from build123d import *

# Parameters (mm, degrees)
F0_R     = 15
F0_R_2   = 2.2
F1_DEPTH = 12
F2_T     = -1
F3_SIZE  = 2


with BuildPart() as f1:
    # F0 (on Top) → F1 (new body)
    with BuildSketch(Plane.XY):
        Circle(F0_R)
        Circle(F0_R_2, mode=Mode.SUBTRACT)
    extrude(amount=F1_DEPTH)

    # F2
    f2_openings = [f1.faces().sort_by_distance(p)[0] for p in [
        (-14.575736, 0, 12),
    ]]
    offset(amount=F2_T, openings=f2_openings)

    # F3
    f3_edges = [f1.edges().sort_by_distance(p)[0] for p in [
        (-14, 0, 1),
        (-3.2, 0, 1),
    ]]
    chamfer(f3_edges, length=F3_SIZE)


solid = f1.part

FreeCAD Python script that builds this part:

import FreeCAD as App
import Part
import Sketcher
from FreeCAD import Vector
Q = App.Units.Quantity


def edges_at(feature, points):
    """Names of the edges that pass closest to the given points."""
    edges = feature.Shape.Edges
    near = lambda p: min(range(len(edges)), key=lambda i: edges[i].distToShape(Part.Vertex(*p))[0])
    return sorted({f"Edge{near(p) + 1}" for p in points})


def faces_at(feature, points):
    """Names of the faces that lie closest to the given points."""
    faces = feature.Shape.Faces
    near = lambda p: min(range(len(faces)), key=lambda i: faces[i].distToShape(Part.Vertex(*p))[0])
    return sorted({f"Face{near(p) + 1}" for p in points})

doc = App.newDocument("Part")
params = doc.addObject("Spreadsheet::Sheet", "Params")
for row, (alias, value) in enumerate([
    ("sketch1_diameter", "30 mm"),
    ("sketch1_diameter2", "4.4 mm"),
    ("pad1_length", "12 mm"),
    ("thickness_wall", "1 mm"),
    ("chamfer_size", "2 mm"),
], start=1):
    params.set(f"A{row}", alias)
    params.set(f"B{row}", "=" + value)
    params.setAlias(f"B{row}", alias)

body = doc.addObject("PartDesign::Body", "Body")

sketch1 = body.newObject("Sketcher::SketchObject", "Sketch")
sketch1.AttachmentSupport = (doc.getObject("XY_Plane"), [""])
sketch1.MapMode = "FlatFace"
sketch1.addGeometry([
    Part.Circle(Vector(0, 0, 0), Vector(0, 0, 1), 15),
    Part.Circle(Vector(0, 0, 0), Vector(0, 0, 1), 2.2),
], False)
sketch1.addConstraint([
    Sketcher.Constraint("Coincident", 0, 3, -1, 1),
    Sketcher.Constraint("Coincident", 1, 3, -1, 1),
    Sketcher.Constraint("Diameter", 0, Q("30 mm")),
    Sketcher.Constraint("Diameter", 1, Q("4.4 mm")),
])
sketch1.setExpression("Constraints[2]", "Params.sketch1_diameter")
sketch1.setExpression("Constraints[3]", "Params.sketch1_diameter2")
pad1 = body.newObject("PartDesign::Pad", "Pad")
pad1.Profile = sketch1
pad1.setExpression("Length", "Params.pad1_length")
doc.recompute()

thickness = body.newObject("PartDesign::Thickness", "Thickness")
thickness.Base = (pad1, faces_at(pad1, [(-6, -6, 12)]))
thickness.setExpression("Value", "Params.thickness_wall")
thickness.Reversed = True
thickness.Join = "Arc"
doc.recompute()

chamfer = body.newObject("PartDesign::Chamfer", "Chamfer")
chamfer.Base = (thickness, edges_at(thickness, [(-14, 0, 1), (-3.2, 0, 1)]))
chamfer.setExpression("Size", "Params.chamfer_size")

doc.recompute()
